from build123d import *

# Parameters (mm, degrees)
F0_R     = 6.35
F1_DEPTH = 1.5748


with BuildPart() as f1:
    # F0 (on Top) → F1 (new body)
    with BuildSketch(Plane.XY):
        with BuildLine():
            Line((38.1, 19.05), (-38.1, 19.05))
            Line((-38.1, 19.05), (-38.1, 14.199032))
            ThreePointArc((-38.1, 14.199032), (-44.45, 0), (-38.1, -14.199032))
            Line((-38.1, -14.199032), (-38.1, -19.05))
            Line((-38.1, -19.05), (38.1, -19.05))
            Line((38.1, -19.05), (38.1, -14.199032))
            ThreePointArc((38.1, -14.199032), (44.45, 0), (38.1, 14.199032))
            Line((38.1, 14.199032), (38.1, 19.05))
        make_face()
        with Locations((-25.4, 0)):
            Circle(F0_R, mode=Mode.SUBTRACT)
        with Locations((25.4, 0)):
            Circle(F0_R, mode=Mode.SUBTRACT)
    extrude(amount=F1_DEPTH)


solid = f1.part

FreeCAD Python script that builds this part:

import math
import FreeCAD as App
import Part
import Sketcher

V = App.Vector
Q = App.Units.Quantity

doc = App.newDocument("Part")
body = doc.addObject("PartDesign::Body", "Body")

sketch1 = body.newObject("Sketcher::SketchObject", "Sketch")
sketch1.AttachmentSupport = (doc.getObject("XY_Plane"), [""])
sketch1.MapMode = "FlatFace"
sketch1.addGeometry([
    Part.LineSegment(V(38.1, 19.1, 0), V(-38.1, 19.1, 0)),
    Part.LineSegment(V(-38.1, 19.1, 0), V(-38.1, 14.2, 0)),
    Part.ArcOfCircle(Part.Circle(V(-25.4, 0, 0), V(0, 0, 1), 19.1), math.radians(132), math.radians(228)),
    Part.LineSegment(V(-38.1, -14.2, 0), V(-38.1, -19.1, 0)),
    Part.LineSegment(V(-38.1, -19.1, 0), V(38.1, -19.1, 0)),
    Part.LineSegment(V(38.1, -19.1, 0), V(38.1, -14.2, 0)),
    Part.ArcOfCircle(Part.Circle(V(25.4, 0, 0), V(0, 0, 1), 19.1), math.radians(-48), math.radians(48)),
    Part.LineSegment(V(38.1, 14.2, 0), V(38.1, 19.1, 0)),
    Part.Circle(V(-25.4, 0, 0), V(0, 0, 1), 6.3),
    Part.Circle(V(25.4, 0, 0), V(0, 0, 1), 6.3),
], False)
sketch1.addConstraint([
    Sketcher.Constraint("Coincident", 0, 2, 1, 1),
    Sketcher.Constraint("Coincident", 1, 2, 2, 1),
    Sketcher.Constraint("Coincident", 2, 2, 3, 1),
    Sketcher.Constraint("Coincident", 3, 2, 4, 1),
    Sketcher.Constraint("Coincident", 4, 2, 5, 1),
    Sketcher.Constraint("Coincident", 5, 2, 6, 1),
    Sketcher.Constraint("Coincident", 6, 2, 7, 1),
    Sketcher.Constraint("Coincident", 7, 2, 0, 1),
    Sketcher.Constraint("Horizontal", 0),
    Sketcher.Constraint("Vertical", 1),
    Sketcher.Constraint("Vertical", 3),
    Sketcher.Constraint("Horizontal", 4),
    Sketcher.Constraint("Vertical", 5),
    Sketcher.Constraint("Vertical", 7),
    Sketcher.Constraint("Coincident", 8, 3, 2, 3),
    Sketcher.Constraint("Coincident", 9, 3, 6, 3),
    Sketcher.Constraint("Equal", 2, 6),
    Sketcher.Constraint("Equal", 8, 9),
    Sketcher.Constraint("Symmetric", 2, 3, 6, 3, -1, 1),
    Sketcher.Constraint("Symmetric", 0, 2, 4, 2, -1, 1),
    Sketcher.Constraint("Symmetric", 2, 2, 5, 2, -2),
    Sketcher.Constraint("Horizontal", 1, 2, 6, 2),
    Sketcher.Constraint("Diameter", 8, Q("0.5 in")),
    Sketcher.Constraint("DistanceX", 0, 2, 0, 1, Q("3 in")),
    Sketcher.Constraint("Radius", 2, Q("0.75 in")),
    Sketcher.Constraint("DistanceX", 2, 3, -1, 1, Q("1 in")),
    Sketcher.Constraint("DistanceY", 3, 2, 0, 2, Q("1.5 in")),
])
pad1 = body.newObject("PartDesign::Pad", "Pad")
pad1.Profile = sketch1
pad1.Length = Q("0.062 in")

doc.recompute()
